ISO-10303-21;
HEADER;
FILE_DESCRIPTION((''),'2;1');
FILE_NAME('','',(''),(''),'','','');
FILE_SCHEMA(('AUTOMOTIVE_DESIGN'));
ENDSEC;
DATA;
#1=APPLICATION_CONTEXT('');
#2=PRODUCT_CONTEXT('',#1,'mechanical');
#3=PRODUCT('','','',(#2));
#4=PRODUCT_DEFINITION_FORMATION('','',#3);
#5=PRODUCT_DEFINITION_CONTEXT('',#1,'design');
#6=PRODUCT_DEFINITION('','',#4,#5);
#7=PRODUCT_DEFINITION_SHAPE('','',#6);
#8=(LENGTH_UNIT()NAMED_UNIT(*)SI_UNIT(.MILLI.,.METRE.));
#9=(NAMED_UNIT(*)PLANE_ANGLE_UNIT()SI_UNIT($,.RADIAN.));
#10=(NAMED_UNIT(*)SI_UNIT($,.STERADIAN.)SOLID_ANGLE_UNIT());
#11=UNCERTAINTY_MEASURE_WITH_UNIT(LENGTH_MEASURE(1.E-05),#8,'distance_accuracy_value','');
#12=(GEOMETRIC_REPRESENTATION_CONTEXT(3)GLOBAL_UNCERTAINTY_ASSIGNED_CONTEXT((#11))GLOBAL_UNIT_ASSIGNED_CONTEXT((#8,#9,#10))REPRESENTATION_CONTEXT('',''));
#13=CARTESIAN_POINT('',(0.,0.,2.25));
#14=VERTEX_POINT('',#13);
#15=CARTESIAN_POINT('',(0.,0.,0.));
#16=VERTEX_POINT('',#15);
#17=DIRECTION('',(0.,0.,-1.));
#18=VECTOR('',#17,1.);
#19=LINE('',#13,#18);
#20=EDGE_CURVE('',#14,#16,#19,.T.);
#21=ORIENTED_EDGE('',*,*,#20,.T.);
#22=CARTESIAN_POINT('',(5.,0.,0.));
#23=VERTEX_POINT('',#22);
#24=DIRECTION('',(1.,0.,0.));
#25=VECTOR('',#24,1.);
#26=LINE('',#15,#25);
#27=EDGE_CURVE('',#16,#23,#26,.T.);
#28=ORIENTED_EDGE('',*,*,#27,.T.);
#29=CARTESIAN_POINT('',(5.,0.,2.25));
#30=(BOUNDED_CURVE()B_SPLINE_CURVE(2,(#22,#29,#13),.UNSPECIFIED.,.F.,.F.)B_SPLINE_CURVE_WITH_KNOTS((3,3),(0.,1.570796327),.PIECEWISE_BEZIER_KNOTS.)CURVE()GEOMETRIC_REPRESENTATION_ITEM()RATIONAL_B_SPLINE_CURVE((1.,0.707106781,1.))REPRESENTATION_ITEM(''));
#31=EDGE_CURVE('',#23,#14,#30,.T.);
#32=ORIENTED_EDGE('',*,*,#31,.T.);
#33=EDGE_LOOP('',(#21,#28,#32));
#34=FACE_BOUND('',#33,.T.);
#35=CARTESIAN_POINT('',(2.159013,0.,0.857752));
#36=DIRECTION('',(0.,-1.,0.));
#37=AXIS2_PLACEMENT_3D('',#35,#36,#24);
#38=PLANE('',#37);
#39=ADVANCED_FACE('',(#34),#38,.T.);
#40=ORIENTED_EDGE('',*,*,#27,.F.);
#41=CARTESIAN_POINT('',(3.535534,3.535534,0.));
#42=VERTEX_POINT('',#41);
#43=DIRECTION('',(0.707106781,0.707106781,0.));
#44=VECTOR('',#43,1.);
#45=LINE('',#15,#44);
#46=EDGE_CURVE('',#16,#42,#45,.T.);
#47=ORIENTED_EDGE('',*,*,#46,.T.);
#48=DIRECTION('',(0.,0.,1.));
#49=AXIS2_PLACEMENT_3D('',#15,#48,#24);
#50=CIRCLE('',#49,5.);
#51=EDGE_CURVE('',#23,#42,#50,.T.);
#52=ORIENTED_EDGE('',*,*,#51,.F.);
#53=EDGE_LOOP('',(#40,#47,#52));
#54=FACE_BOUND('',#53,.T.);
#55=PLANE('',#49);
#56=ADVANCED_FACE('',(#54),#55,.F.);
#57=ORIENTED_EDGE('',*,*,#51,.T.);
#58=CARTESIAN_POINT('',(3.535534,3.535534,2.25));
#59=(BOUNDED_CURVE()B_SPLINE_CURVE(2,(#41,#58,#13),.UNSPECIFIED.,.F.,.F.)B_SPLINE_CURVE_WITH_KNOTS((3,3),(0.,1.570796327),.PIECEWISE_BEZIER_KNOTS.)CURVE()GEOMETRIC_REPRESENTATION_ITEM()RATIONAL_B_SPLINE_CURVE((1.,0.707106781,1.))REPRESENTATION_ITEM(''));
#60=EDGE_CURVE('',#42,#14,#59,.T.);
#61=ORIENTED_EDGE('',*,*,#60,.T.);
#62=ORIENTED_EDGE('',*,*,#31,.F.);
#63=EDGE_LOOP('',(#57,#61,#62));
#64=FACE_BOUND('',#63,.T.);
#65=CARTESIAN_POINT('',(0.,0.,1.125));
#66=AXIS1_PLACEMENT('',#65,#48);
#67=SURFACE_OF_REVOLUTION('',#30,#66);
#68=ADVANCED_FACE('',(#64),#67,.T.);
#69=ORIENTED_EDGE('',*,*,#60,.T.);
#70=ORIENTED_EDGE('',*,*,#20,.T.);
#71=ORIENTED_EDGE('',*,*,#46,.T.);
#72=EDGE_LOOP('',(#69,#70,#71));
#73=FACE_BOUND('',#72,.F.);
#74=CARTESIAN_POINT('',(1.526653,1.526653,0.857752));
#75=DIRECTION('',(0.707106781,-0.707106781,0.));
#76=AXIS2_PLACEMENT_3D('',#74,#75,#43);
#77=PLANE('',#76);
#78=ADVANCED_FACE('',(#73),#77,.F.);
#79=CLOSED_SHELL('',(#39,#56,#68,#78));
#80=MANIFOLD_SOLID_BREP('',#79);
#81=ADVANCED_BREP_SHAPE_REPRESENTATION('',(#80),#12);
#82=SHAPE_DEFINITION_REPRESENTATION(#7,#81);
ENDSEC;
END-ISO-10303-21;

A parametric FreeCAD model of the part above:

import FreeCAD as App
import Part
import Sketcher
from FreeCAD import Vector

doc = App.newDocument("Part")
body = doc.addObject("PartDesign::Body", "Body")

# Sketch on XZ plane
sketch1 = doc.addObject("Sketcher::SketchObject", "Sketch")
body.addObject(sketch1)
sketch1.AttachmentSupport = (doc.XZ_Plane, [""])
sketch1.MapMode = "FlatFace"
sketch1.addGeometry([
    Part.LineSegment(Vector(0, 0, 0), Vector(5, 0, 0)),
    Part.BSplineCurve([Vector(5, 0, 0), Vector(5, 2.25, 0), Vector(0, 2.25, 0)], [3, 3], [0, 1.570796327], False, 2, [1, 0.707106781, 1], False),
    Part.LineSegment(Vector(0, 2.25, 0), Vector(0, 0, 0)),
], False)
sketch1.addConstraint([
    Sketcher.Constraint("Block", 1),
    Sketcher.Constraint("Coincident", 0, 2, 1, 1),
    Sketcher.Constraint("Coincident", 1, 2, 2, 1),
    Sketcher.Constraint("Coincident", 2, 2, 0, 1),
    Sketcher.Constraint("Horizontal", 0),
    Sketcher.Constraint("Vertical", 2),
])
revolution = doc.addObject("PartDesign::Revolution", "Revolution")
body.addObject(revolution)
revolution.Profile = sketch1
revolution.ReferenceAxis = (sketch1, ["V_Axis"])
revolution.Angle = 45

doc.recompute()
